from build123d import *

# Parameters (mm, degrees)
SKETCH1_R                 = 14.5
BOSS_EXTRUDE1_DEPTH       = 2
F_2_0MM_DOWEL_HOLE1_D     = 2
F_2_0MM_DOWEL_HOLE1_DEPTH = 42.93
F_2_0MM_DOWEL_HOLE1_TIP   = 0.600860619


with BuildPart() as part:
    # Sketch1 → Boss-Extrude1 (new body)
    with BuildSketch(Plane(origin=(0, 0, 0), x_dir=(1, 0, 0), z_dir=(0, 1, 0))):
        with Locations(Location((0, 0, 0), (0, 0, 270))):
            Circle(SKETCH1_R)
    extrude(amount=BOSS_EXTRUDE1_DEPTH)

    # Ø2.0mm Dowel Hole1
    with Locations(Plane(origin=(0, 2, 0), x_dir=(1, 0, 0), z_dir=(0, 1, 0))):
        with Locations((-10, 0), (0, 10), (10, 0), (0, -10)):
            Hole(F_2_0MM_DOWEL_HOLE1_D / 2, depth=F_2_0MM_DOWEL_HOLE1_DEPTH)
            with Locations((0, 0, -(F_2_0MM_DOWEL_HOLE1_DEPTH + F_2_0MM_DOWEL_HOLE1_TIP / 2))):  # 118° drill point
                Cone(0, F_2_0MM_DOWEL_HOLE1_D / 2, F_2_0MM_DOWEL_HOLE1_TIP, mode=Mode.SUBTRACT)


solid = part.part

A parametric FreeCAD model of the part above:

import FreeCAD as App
import Part
import Sketcher

V = App.Vector
Q = App.Units.Quantity

doc = App.newDocument("Part")
body = doc.addObject("PartDesign::Body", "Body")

# Sketch on XZ plane
sketch1 = body.newObject("Sketcher::SketchObject", "Sketch")
sketch1.AttachmentSupport = (doc.getObject("XZ_Plane"), [""])
sketch1.MapMode = "FlatFace"
sketch1.addGeometry(Part.Circle(V(0, 0, 0), V(0, 0, 1), 14), False)
sketch1.addConstraint(Sketcher.Constraint("Coincident", 0, 3, -1, 1))
sketch1.addConstraint(Sketcher.Constraint("Diameter", 0, Q("29 mm")))
pad1 = body.newObject("PartDesign::Pad", "Pad")
pad1.Profile = sketch1
pad1.Length = 2
pad1.Reversed = True

# Sketch on XZ plane
sketch2 = body.newObject("Sketcher::SketchObject", "Sketch001")
sketch2.AttachmentSupport = (doc.getObject("XZ_Plane"), [""])
sketch2.MapMode = "FlatFace"
sketch2.AttachmentOffset = App.Placement(V(0, 0, -2), App.Rotation())
sketch2.addGeometry(Part.Circle(V(-10, 0, 0), V(0, 0, 1), 1), False)
sketch2.addGeometry(Part.Circle(V(0, -10, 0), V(0, 0, 1), 1), False)
sketch2.addGeometry(Part.Circle(V(10, 0, 0), V(0, 0, 1), 1), False)
sketch2.addGeometry(Part.Circle(V(0, 10, 0), V(0, 0, 1), 1), False)
sketch2.addConstraint(Sketcher.Constraint("Equal", 0, 1))
sketch2.addConstraint(Sketcher.Constraint("Equal", 1, 2))
sketch2.addConstraint(Sketcher.Constraint("Equal", 2, 3))
sketch2.addConstraint(Sketcher.Constraint("Symmetric", 0, 3, 2, 3, -1, 1))
sketch2.addConstraint(Sketcher.Constraint("Symmetric", 1, 3, 3, 3, -1, 1))
sketch2.addConstraint(Sketcher.Constraint("PointOnObject", 0, 3, -1))
sketch2.addConstraint(Sketcher.Constraint("PointOnObject", 1, 3, -2))
sketch2.addConstraint(Sketcher.Constraint("Diameter", 0, Q("2 mm")))
sketch2.addConstraint(Sketcher.Constraint("DistanceX", 0, 3, -1, 1, Q("10 mm")))
sketch2.addConstraint(Sketcher.Constraint("DistanceY", 1, 3, -1, 1, Q("10 mm")))
doc.recompute()
hole = body.newObject("PartDesign::Hole", "Hole")
hole.Profile = sketch2
hole.ThreadType = "None"
hole.Diameter = 2
hole.DepthType = "Dimension"
hole.Depth = 42.93
hole.DrillPoint = "Angled"
hole.DrillPointAngle = 118
hole.Reversed = True

doc.recompute()
